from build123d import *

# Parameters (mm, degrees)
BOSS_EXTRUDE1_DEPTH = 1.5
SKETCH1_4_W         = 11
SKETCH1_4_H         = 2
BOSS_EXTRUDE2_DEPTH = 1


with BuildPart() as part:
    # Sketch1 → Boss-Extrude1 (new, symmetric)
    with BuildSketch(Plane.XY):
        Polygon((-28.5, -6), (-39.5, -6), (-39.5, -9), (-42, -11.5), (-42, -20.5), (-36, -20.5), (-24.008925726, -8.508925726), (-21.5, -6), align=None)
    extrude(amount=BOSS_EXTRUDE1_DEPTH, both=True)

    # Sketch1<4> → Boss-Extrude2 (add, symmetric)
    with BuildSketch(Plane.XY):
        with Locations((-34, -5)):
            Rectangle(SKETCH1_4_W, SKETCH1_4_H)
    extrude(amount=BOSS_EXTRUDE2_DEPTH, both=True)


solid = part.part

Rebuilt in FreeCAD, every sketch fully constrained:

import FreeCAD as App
import Part
import Sketcher
from FreeCAD import Vector

doc = App.newDocument("Part")
body = doc.addObject("PartDesign::Body", "Body")

# Sketch on XY plane
sketch1 = doc.addObject("Sketcher::SketchObject", "Sketch")
body.addObject(sketch1)
sketch1.AttachmentSupport = (doc.XY_Plane, [""])
sketch1.MapMode = "FlatFace"
sketch1.addGeometry(Part.LineSegment(Vector(-39.5, -6, 0), Vector(-39.5, -9, 0)), False)
sketch1.addGeometry(Part.LineSegment(Vector(-39.5, -9, 0), Vector(-42, -11.5, 0)), False)
sketch1.addGeometry(Part.LineSegment(Vector(-42, -11.5, 0), Vector(-42, -20.5, 0)), False)
sketch1.addGeometry(Part.LineSegment(Vector(-42, -20.5, 0), Vector(-36, -20.5, 0)), False)
sketch1.addGeometry(Part.LineSegment(Vector(-36, -20.5, 0), Vector(-21.5, -6, 0)), False)
sketch1.addGeometry(Part.LineSegment(Vector(-21.5, -6, 0), Vector(-39.5, -6, 0)), False)
sketch1.addConstraint(Sketcher.Constraint("Coincident", 0, 2, 1, 1))
sketch1.addConstraint(Sketcher.Constraint("Coincident", 1, 2, 2, 1))
sketch1.addConstraint(Sketcher.Constraint("Coincident", 2, 2, 3, 1))
sketch1.addConstraint(Sketcher.Constraint("Coincident", 3, 2, 4, 1))
sketch1.addConstraint(Sketcher.Constraint("Coincident", 4, 2, 5, 1))
sketch1.addConstraint(Sketcher.Constraint("Coincident", 5, 2, 0, 1))
sketch1.addConstraint(Sketcher.Constraint("Vertical", 0))
sketch1.addConstraint(Sketcher.Constraint("Vertical", 2))
sketch1.addConstraint(Sketcher.Constraint("Horizontal", 3))
sketch1.addConstraint(Sketcher.Constraint("Horizontal", 5))
sketch1.addConstraint(Sketcher.Constraint("Parallel", 1, 4))
sketch1.addConstraint(Sketcher.Constraint("DistanceX", 3, 1, 3, 2, 6.0))
sketch1.addConstraint(Sketcher.Constraint("DistanceX", 5, 2, 5, 1, 18.0))
sketch1.addConstraint(Sketcher.Constraint("DistanceY", 0, 2, 0, 1, 3.0))
sketch1.addConstraint(Sketcher.Constraint("DistanceY", 2, 2, 2, 1, 9.0))
sketch1.addConstraint(Sketcher.Constraint("DistanceY", 0, 2, -1, 1, 9.0))
sketch1.addConstraint(Sketcher.Constraint("DistanceX", 1, 2, -1, 1, 42.0))
sketch1.addConstraint(Sketcher.Constraint("DistanceX", 0, 2, -1, 1, 39.5))
pad1 = doc.addObject("PartDesign::Pad", "Pad")
body.addObject(pad1)
pad1.Profile = sketch1
pad1.Length = 3
pad1.Midplane = True

# Sketch on XY plane
sketch2 = doc.addObject("Sketcher::SketchObject", "Sketch001")
body.addObject(sketch2)
sketch2.AttachmentSupport = (doc.XY_Plane, [""])
sketch2.MapMode = "FlatFace"
sketch2.addGeometry(Part.LineSegment(Vector(-39.5, -4, 0), Vector(-39.5, -6, 0)), False)
sketch2.addGeometry(Part.LineSegment(Vector(-39.5, -6, 0), Vector(-28.5, -6, 0)), False)
sketch2.addGeometry(Part.LineSegment(Vector(-28.5, -6, 0), Vector(-28.5, -4, 0)), False)
sketch2.addGeometry(Part.LineSegment(Vector(-28.5, -4, 0), Vector(-39.5, -4, 0)), False)
sketch2.addConstraint(Sketcher.Constraint("Coincident", 0, 2, 1, 1))
sketch2.addConstraint(Sketcher.Constraint("Coincident", 1, 2, 2, 1))
sketch2.addConstraint(Sketcher.Constraint("Coincident", 2, 2, 3, 1))
sketch2.addConstraint(Sketcher.Constraint("Coincident", 3, 2, 0, 1))
sketch2.addConstraint(Sketcher.Constraint("Vertical", 0))
sketch2.addConstraint(Sketcher.Constraint("Horizontal", 1))
sketch2.addConstraint(Sketcher.Constraint("Vertical", 2))
sketch2.addConstraint(Sketcher.Constraint("Horizontal", 3))
sketch2.addConstraint(Sketcher.Constraint("DistanceX", 1, 1, 1, 2, 11.0))
sketch2.addConstraint(Sketcher.Constraint("DistanceY", 0, 2, 0, 1, 2.0))
sketch2.addConstraint(Sketcher.Constraint("DistanceY", 0, 2, -1, 1, 6.0))
sketch2.addConstraint(Sketcher.Constraint("DistanceX", 0, 2, -1, 1, 39.5))
pad2 = doc.addObject("PartDesign::Pad", "Pad001")
body.addObject(pad2)
pad2.Profile = sketch2
pad2.Length = 2
pad2.Midplane = True

doc.recompute()
